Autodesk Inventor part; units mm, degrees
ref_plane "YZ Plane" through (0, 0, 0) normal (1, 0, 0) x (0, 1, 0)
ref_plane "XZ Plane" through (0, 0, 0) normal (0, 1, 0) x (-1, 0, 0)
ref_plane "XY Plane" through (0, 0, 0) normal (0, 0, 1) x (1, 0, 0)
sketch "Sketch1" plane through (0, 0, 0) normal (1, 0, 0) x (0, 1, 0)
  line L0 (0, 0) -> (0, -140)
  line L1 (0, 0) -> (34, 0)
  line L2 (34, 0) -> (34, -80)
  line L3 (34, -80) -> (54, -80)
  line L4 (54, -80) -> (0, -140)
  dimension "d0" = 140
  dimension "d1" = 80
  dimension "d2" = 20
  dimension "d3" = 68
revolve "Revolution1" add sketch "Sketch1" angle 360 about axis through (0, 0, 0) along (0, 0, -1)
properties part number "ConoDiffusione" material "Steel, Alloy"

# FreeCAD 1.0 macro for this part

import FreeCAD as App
import Part
import Sketcher
from FreeCAD import Vector


def add_polygon(sketch, points):
    """Adds a closed chain of lines whose ends are joined by coincident constraints."""
    first, n = sketch.GeometryCount, len(points)
    for a, b in zip(points, points[1:] + points[:1]):
        sketch.addGeometry(Part.LineSegment(App.Vector(*a, 0), App.Vector(*b, 0)), False)
    for i in range(n):
        sketch.addConstraint(Sketcher.Constraint("Coincident", first + i, 2, first + (i + 1) % n, 1))

doc = App.newDocument("Part")
body = doc.addObject("PartDesign::Body", "Body")

sketch1 = body.newObject("Sketcher::SketchObject", "Sketch")
sketch1.AttachmentSupport = (doc.getObject("YZ_Plane"), [""])
sketch1.MapMode = "FlatFace"
add_polygon(sketch1, [(34, 0), (0, 0), (0, -140), (54, -80), (34, -80)])
sketch1.addConstraint([
    Sketcher.Constraint("Horizontal", 0),
    Sketcher.Constraint("Vertical", 1),
    Sketcher.Constraint("Horizontal", 3),
    Sketcher.Constraint("Vertical", 4),
    Sketcher.Constraint("Coincident", 0, 2, -1, 1),
    Sketcher.Constraint("DistanceX", 3, 2, 3, 1, 20.0),
    Sketcher.Constraint("DistanceY", 1, 2, 1, 1, 140.0),
    Sketcher.Constraint("DistanceY", 4, 1, 4, 2, 80.0),
    Sketcher.Constraint("DistanceX", 0, 2, 0, 1, 34.0),
])
revolution = body.newObject("PartDesign::Revolution", "Revolution")
revolution.Profile = sketch1
revolution.ReferenceAxis = (sketch1, ["V_Axis"])
revolution.Angle = 360

doc.recompute()
